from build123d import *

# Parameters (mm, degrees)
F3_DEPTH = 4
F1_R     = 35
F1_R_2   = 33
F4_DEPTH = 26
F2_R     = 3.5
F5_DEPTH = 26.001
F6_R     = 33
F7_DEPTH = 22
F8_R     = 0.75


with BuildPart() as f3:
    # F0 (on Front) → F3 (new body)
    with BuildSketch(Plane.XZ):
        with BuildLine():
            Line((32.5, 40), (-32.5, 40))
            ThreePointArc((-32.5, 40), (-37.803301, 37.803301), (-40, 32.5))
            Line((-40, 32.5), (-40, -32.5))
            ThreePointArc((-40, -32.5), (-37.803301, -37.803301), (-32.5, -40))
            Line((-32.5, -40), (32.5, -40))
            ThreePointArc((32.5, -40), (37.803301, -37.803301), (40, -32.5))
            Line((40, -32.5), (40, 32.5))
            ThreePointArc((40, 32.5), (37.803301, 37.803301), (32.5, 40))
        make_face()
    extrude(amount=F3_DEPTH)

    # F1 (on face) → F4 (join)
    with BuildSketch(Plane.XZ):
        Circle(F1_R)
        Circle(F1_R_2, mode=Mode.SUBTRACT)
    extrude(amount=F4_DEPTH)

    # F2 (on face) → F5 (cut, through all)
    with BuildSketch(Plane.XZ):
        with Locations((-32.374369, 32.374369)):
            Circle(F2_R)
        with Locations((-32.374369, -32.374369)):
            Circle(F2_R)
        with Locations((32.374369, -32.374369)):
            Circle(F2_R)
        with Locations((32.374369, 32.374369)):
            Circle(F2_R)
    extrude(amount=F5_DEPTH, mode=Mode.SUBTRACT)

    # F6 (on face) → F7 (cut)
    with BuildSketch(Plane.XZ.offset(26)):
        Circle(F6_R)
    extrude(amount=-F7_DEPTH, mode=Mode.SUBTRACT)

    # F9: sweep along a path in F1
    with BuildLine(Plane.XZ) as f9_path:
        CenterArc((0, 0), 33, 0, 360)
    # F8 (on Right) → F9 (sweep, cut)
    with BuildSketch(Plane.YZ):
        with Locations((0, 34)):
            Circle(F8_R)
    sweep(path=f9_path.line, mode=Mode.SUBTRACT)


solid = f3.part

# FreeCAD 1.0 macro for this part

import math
import FreeCAD as App
import Part
import Sketcher
from FreeCAD import Vector
Q = App.Units.Quantity

doc = App.newDocument("Part")
body = doc.addObject("PartDesign::Body", "Body")

# Sketch on XZ plane
sketch1 = body.newObject("Sketcher::SketchObject", "Sketch")
sketch1.AttachmentSupport = (doc.getObject("XZ_Plane"), [""])
sketch1.MapMode = "FlatFace"
sketch1.addGeometry([
    Part.LineSegment(Vector(32, 40, 0), Vector(-32, 40, 0)),  # 0
    Part.ArcOfCircle(Part.Circle(Vector(-33, 33, 0), Vector(0, 0, 1), 7), math.radians(90), math.radians(180)),  # 1
    Part.LineSegment(Vector(-40, 32, 0), Vector(-40, -32, 0)),  # 2
    Part.ArcOfCircle(Part.Circle(Vector(-33, -33, 0), Vector(0, 0, 1), 7), math.radians(180), math.radians(270)),  # 3
    Part.LineSegment(Vector(-32, -40, 0), Vector(32, -40, 0)),  # 4
    Part.ArcOfCircle(Part.Circle(Vector(33, -33, 0), Vector(0, 0, 1), 7), math.radians(-90), math.radians(0)),  # 5
    Part.LineSegment(Vector(40, -32, 0), Vector(40, 32, 0)),  # 6
    Part.ArcOfCircle(Part.Circle(Vector(33, 33, 0), Vector(0, 0, 1), 7), math.radians(0), math.radians(90)),  # 7
], False)
sketch1.addConstraint([
    Sketcher.Constraint("Tangent", 0, 2, 1, 1),
    Sketcher.Constraint("Tangent", 1, 2, 2, 1),
    Sketcher.Constraint("Tangent", 2, 2, 3, 1),
    Sketcher.Constraint("Tangent", 3, 2, 4, 1),
    Sketcher.Constraint("Tangent", 4, 2, 5, 1),
    Sketcher.Constraint("Tangent", 5, 2, 6, 1),
    Sketcher.Constraint("Tangent", 6, 2, 7, 1),
    Sketcher.Constraint("Tangent", 7, 2, 0, 1),
    Sketcher.Constraint("Horizontal", 0),
    Sketcher.Constraint("Vertical", 2),
    Sketcher.Constraint("Horizontal", 4),
    Sketcher.Constraint("Vertical", 6),
    Sketcher.Constraint("Equal", 1, 3),
    Sketcher.Constraint("Equal", 3, 5),
    Sketcher.Constraint("Equal", 5, 7),
    Sketcher.Constraint("Symmetric", 1, 3, 5, 3, -1, 1),
    Sketcher.Constraint("Equal", 4, 2),
    Sketcher.Constraint("Radius", 1, Q("7.5 mm")),
    Sketcher.Constraint("DistanceX", 0, 2, 0, 1, Q("65 mm")),
])
pad1 = body.newObject("PartDesign::Pad", "Pad")
pad1.Profile = sketch1
pad1.Length = 4

# Sketch on XZ plane
sketch2 = body.newObject("Sketcher::SketchObject", "Sketch001")
sketch2.AttachmentSupport = (doc.getObject("XZ_Plane"), [""])
sketch2.MapMode = "FlatFace"
sketch2.addGeometry([
    Part.Circle(Vector(0, 0, 0), Vector(0, 0, 1), 35),
    Part.Circle(Vector(0, 0, 0), Vector(0, 0, 1), 33),
], False)
sketch2.addConstraint([
    Sketcher.Constraint("Coincident", 0, 3, -1, 1),
    Sketcher.Constraint("Coincident", 1, 3, -1, 1),
    Sketcher.Constraint("Diameter", 0, Q("70 mm")),
    Sketcher.Constraint("Diameter", 1, Q("66 mm")),
])
pad2 = body.newObject("PartDesign::Pad", "Pad001")
pad2.Profile = sketch2
pad2.Length = 26

# Sketch on XZ plane
sketch3 = body.newObject("Sketcher::SketchObject", "Sketch002")
sketch3.AttachmentSupport = (doc.getObject("XZ_Plane"), [""])
sketch3.MapMode = "FlatFace"
sketch3.addGeometry([
    Part.Circle(Vector(-32.4, 32.4, 0), Vector(0, 0, 1), 3.5),
    Part.Circle(Vector(-32.4, -32.4, 0), Vector(0, 0, 1), 3.5),
    Part.Circle(Vector(32.4, -32.4, 0), Vector(0, 0, 1), 3.5),
    Part.Circle(Vector(32.4, 32.4, 0), Vector(0, 0, 1), 3.5),
], False)
sketch3.addConstraint([
    Sketcher.Constraint("Equal", 0, 1),
    Sketcher.Constraint("Equal", 1, 2),
    Sketcher.Constraint("Equal", 2, 3),
    Sketcher.Constraint("Symmetric", 0, 3, 2, 3, -1, 1),
    Sketcher.Constraint("Symmetric", 1, 3, 3, 3, -1, 1),
    Sketcher.Constraint("Symmetric", 1, 3, 2, 3, -2),
    Sketcher.Constraint("Diameter", 0, Q("7 mm")),
    Sketcher.Constraint("DistanceX", 0, 3, -1, 1, Q("32.374369 mm")),
    Sketcher.Constraint("DistanceY", -1, 1, 0, 3, Q("32.374369 mm")),
])
pocket1 = body.newObject("PartDesign::Pocket", "Pocket")
pocket1.Profile = sketch3
pocket1.Type = "ThroughAll"
pocket1.Reversed = True

# Sketch on XZ plane
sketch4 = body.newObject("Sketcher::SketchObject", "Sketch003")
sketch4.AttachmentSupport = (doc.getObject("XZ_Plane"), [""])
sketch4.MapMode = "FlatFace"
sketch4.AttachmentOffset = App.Placement(Vector(0, 0, 26), App.Rotation())
sketch4.addGeometry(Part.Circle(Vector(0, 0, 0), Vector(0, 0, 1), 33), False)
sketch4.addConstraint([
    Sketcher.Constraint("Coincident", 0, 3, -1, 1),
    Sketcher.Constraint("Diameter", 0, Q("66 mm")),
])
pocket2 = body.newObject("PartDesign::Pocket", "Pocket001")
pocket2.Profile = sketch4
pocket2.Length = 22

# Sketch on YZ plane
sketch5 = body.newObject("Sketcher::SketchObject", "Sketch004")
sketch5.AttachmentSupport = (doc.getObject("YZ_Plane"), [""])
sketch5.MapMode = "FlatFace"
sketch5.addGeometry(Part.Circle(Vector(0, 34, 0), Vector(0, 0, 1), 0.8), False)
sketch5.addConstraint([
    Sketcher.Constraint("PointOnObject", 0, 3, -2),
    Sketcher.Constraint("Diameter", 0, Q("1.5 mm")),
    Sketcher.Constraint("DistanceY", -1, 1, 0, 3, Q("34 mm")),
])

# Sketch on XZ plane
sketch6 = body.newObject("Sketcher::SketchObject", "Sketch005")
sketch6.AttachmentSupport = (doc.getObject("XZ_Plane"), [""])
sketch6.MapMode = "FlatFace"
sketch6.addGeometry(Part.Circle(Vector(0, 0, 0), Vector(0, 0, 1), 33), False)
sketch6.addConstraint([
    Sketcher.Constraint("Coincident", 0, 3, -1, 1),
    Sketcher.Constraint("Diameter", 0, Q("66 mm")),
])
doc.recompute()

subtractivepipe = body.newObject("PartDesign::SubtractivePipe", "SubtractivePipe")
subtractivepipe.Profile = sketch5
subtractivepipe.Spine = (sketch6, ["Edge1"])

doc.recompute()
